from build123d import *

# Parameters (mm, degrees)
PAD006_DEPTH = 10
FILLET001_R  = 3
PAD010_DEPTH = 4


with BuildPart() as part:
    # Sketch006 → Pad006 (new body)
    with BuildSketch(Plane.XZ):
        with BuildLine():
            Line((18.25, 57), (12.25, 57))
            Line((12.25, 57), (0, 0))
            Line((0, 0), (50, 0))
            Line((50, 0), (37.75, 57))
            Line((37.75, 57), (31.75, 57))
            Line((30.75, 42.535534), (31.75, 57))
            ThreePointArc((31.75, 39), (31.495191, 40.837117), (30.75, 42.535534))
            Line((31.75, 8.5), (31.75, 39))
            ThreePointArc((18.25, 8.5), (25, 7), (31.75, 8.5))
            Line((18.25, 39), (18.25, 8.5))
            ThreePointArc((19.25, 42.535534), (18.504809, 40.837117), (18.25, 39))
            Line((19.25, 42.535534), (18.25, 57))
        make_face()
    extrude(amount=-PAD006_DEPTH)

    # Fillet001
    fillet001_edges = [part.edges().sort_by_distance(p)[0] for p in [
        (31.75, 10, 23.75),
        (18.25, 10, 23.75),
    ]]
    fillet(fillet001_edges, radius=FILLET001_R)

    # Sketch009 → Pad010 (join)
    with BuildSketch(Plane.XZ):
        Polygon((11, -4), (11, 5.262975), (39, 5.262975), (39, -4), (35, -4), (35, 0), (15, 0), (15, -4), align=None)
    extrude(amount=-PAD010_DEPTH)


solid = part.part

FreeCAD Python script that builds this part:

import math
import FreeCAD as App
import Part
import Sketcher

V = App.Vector


def edges_at(feature, points):
    """Names of the edges that pass closest to the given points."""
    edges = feature.Shape.Edges
    near = lambda p: min(range(len(edges)), key=lambda i: edges[i].distToShape(Part.Vertex(*p))[0])
    return sorted({f"Edge{near(p) + 1}" for p in points})


def add_polygon(sketch, points):
    """Adds a closed chain of lines whose ends are joined by coincident constraints."""
    first, n = sketch.GeometryCount, len(points)
    for a, b in zip(points, points[1:] + points[:1]):
        sketch.addGeometry(Part.LineSegment(App.Vector(*a, 0), App.Vector(*b, 0)), False)
    for i in range(n):
        sketch.addConstraint(Sketcher.Constraint("Coincident", first + i, 2, first + (i + 1) % n, 1))

doc = App.newDocument("Part")
body = doc.addObject("PartDesign::Body", "Body")

sketch1 = doc.addObject("Sketcher::SketchObject", "Sketch")
body.addObject(sketch1)
sketch1.AttachmentSupport = (doc.XZ_Plane, [""])
sketch1.MapMode = "FlatFace"
sketch1.addGeometry(Part.LineSegment(V(18.2, 57, 0), V(12.2, 57, 0)), False)
sketch1.addGeometry(Part.LineSegment(V(12.2, 57, 0), V(0, 0, 0)), False)
sketch1.addGeometry(Part.LineSegment(V(0, 0, 0), V(50, 0, 0)), False)
sketch1.addGeometry(Part.LineSegment(V(50, 0, 0), V(37.8, 57, 0)), False)
sketch1.addGeometry(Part.LineSegment(V(37.8, 57, 0), V(31.8, 57, 0)), False)
sketch1.addGeometry(Part.LineSegment(V(31.8, 57, 0), V(30.8, 42.5, 0)), False)
sketch1.addGeometry(Part.ArcOfCircle(Part.Circle(V(25, 39, 0), V(0, 0, 1), 6.7), math.radians(0), math.radians(32)), False)
sketch1.addGeometry(Part.LineSegment(V(31.8, 39, 0), V(31.8, 8.5, 0)), False)
sketch1.addGeometry(Part.ArcOfCircle(Part.Circle(V(25, 22.9, 0), V(0, 0, 1), 15.9), math.radians(-115), math.radians(-65)), False)
sketch1.addGeometry(Part.LineSegment(V(18.2, 8.5, 0), V(18.2, 39, 0)), False)
sketch1.addGeometry(Part.ArcOfCircle(Part.Circle(V(25, 39, 0), V(0, 0, 1), 6.7), math.radians(148), math.radians(180)), False)
sketch1.addGeometry(Part.LineSegment(V(19.2, 42.5, 0), V(18.2, 57, 0)), False)
sketch1.addConstraint(Sketcher.Constraint("Coincident", 0, 2, 1, 1))
sketch1.addConstraint(Sketcher.Constraint("Coincident", 1, 2, 2, 1))
sketch1.addConstraint(Sketcher.Constraint("Coincident", 2, 2, 3, 1))
sketch1.addConstraint(Sketcher.Constraint("Coincident", 3, 2, 4, 1))
sketch1.addConstraint(Sketcher.Constraint("Coincident", 4, 2, 5, 1))
sketch1.addConstraint(Sketcher.Constraint("Coincident", 5, 2, 6, 2))
sketch1.addConstraint(Sketcher.Constraint("Tangent", 6, 1, 7, 1))
sketch1.addConstraint(Sketcher.Constraint("Coincident", 7, 2, 8, 2))
sketch1.addConstraint(Sketcher.Constraint("Coincident", 8, 1, 9, 1))
sketch1.addConstraint(Sketcher.Constraint("Tangent", 9, 2, 10, 2))
sketch1.addConstraint(Sketcher.Constraint("Coincident", 10, 1, 11, 1))
sketch1.addConstraint(Sketcher.Constraint("Coincident", 11, 2, 0, 1))
sketch1.addConstraint(Sketcher.Constraint("Horizontal", 0))
sketch1.addConstraint(Sketcher.Constraint("Horizontal", 2))
sketch1.addConstraint(Sketcher.Constraint("Horizontal", 4))
sketch1.addConstraint(Sketcher.Constraint("Vertical", 7))
sketch1.addConstraint(Sketcher.Constraint("Vertical", 9))
sketch1.addConstraint(Sketcher.Constraint("Coincident", 1, 2, -1, 1))
sketch1.addConstraint(Sketcher.Constraint("Equal", 6, 10))
sketch1.addConstraint(Sketcher.Constraint("Horizontal", 6, 3, 10, 3))
sketch1.addConstraint(Sketcher.Constraint("Horizontal", 0, 2, 3, 2))
sketch1.addConstraint(Sketcher.Constraint("Horizontal", 7, 2, 8, 1))
sketch1.addConstraint(Sketcher.Constraint("Horizontal", 5, 2, 10, 1))
sketch1.addConstraint(Sketcher.Constraint("Vertical", 4, 2, 6, 1))
sketch1.addConstraint(Sketcher.Constraint("Vertical", 9, 2, 11, 2))
sketch1.addConstraint(Sketcher.Constraint("Equal", 0, 4))
sketch1.addConstraint(Sketcher.Constraint("Equal", 1, 3))
sketch1.addConstraint(Sketcher.Constraint("DistanceX", 0, 2, 0, 1, 6.0))
sketch1.addConstraint(Sketcher.Constraint("DistanceX", 2, 1, 2, 2, 50.0))
sketch1.addConstraint(Sketcher.Constraint("DistanceY", 7, 2, 7, 1, 30.5))
sketch1.addConstraint(Sketcher.Constraint("DistanceY", -1, 1, 0, 2, 57.0))
sketch1.addConstraint(Sketcher.Constraint("DistanceY", -1, 1, 6, 1, 39.0))
sketch1.addConstraint(Sketcher.Constraint("DistanceX", 5, 2, 4, 2, 1.0))
sketch1.addConstraint(Sketcher.Constraint("Radius", 8, 15.9375))
sketch1.addConstraint(Sketcher.Constraint("DistanceX", 0, 2, 3, 2, 25.5))
sketch1.addConstraint(Sketcher.Constraint("Radius", 6, 6.749991))
pad1 = doc.addObject("PartDesign::Pad", "Pad")
body.addObject(pad1)
pad1.Profile = sketch1
pad1.Length = 10
pad1.Reversed = True
doc.recompute()

fillet = doc.addObject("PartDesign::Fillet", "Fillet")
body.addObject(fillet)
fillet.Base = (pad1, edges_at(pad1, [(31.75, 10, 23.75), (18.25, 10, 23.75)]))
fillet.Radius = 3

sketch2 = doc.addObject("Sketcher::SketchObject", "Sketch001")
body.addObject(sketch2)
sketch2.AttachmentSupport = (doc.XZ_Plane, [""])
sketch2.MapMode = "FlatFace"
add_polygon(sketch2, [(11, 5.3), (11, -4), (15, -4), (15, 0), (35, 0), (35, -4), (39, -4), (39, 5.3)])
sketch2.addConstraint(Sketcher.Constraint("Vertical", 0))
sketch2.addConstraint(Sketcher.Constraint("Horizontal", 1))
sketch2.addConstraint(Sketcher.Constraint("Vertical", 2))
sketch2.addConstraint(Sketcher.Constraint("Horizontal", 3))
sketch2.addConstraint(Sketcher.Constraint("Vertical", 4))
sketch2.addConstraint(Sketcher.Constraint("Horizontal", 5))
sketch2.addConstraint(Sketcher.Constraint("Vertical", 6))
sketch2.addConstraint(Sketcher.Constraint("Horizontal", 7))
sketch2.addConstraint(Sketcher.Constraint("PointOnObject", 2, 2, -1))
sketch2.addConstraint(Sketcher.Constraint("Horizontal", 1, 2, 4, 2))
sketch2.addConstraint(Sketcher.Constraint("Equal", 1, 5))
sketch2.addConstraint(Sketcher.Constraint("Equal", 5, 2))
sketch2.addConstraint(Sketcher.Constraint("DistanceX", 1, 1, 1, 2, 4.0))
sketch2.addConstraint(Sketcher.Constraint("DistanceX", 3, 1, 3, 2, 20.0))
sketch2.addConstraint(Sketcher.Constraint("DistanceX", -1, 1, 0, 2, 11.0))
sketch2.addConstraint(Sketcher.Constraint("DistanceY", 0, 2, 0, 1, 9.262975))
pad2 = doc.addObject("PartDesign::Pad", "Pad001")
body.addObject(pad2)
pad2.Profile = sketch2
pad2.Length = 4
pad2.Reversed = True

doc.recompute()
